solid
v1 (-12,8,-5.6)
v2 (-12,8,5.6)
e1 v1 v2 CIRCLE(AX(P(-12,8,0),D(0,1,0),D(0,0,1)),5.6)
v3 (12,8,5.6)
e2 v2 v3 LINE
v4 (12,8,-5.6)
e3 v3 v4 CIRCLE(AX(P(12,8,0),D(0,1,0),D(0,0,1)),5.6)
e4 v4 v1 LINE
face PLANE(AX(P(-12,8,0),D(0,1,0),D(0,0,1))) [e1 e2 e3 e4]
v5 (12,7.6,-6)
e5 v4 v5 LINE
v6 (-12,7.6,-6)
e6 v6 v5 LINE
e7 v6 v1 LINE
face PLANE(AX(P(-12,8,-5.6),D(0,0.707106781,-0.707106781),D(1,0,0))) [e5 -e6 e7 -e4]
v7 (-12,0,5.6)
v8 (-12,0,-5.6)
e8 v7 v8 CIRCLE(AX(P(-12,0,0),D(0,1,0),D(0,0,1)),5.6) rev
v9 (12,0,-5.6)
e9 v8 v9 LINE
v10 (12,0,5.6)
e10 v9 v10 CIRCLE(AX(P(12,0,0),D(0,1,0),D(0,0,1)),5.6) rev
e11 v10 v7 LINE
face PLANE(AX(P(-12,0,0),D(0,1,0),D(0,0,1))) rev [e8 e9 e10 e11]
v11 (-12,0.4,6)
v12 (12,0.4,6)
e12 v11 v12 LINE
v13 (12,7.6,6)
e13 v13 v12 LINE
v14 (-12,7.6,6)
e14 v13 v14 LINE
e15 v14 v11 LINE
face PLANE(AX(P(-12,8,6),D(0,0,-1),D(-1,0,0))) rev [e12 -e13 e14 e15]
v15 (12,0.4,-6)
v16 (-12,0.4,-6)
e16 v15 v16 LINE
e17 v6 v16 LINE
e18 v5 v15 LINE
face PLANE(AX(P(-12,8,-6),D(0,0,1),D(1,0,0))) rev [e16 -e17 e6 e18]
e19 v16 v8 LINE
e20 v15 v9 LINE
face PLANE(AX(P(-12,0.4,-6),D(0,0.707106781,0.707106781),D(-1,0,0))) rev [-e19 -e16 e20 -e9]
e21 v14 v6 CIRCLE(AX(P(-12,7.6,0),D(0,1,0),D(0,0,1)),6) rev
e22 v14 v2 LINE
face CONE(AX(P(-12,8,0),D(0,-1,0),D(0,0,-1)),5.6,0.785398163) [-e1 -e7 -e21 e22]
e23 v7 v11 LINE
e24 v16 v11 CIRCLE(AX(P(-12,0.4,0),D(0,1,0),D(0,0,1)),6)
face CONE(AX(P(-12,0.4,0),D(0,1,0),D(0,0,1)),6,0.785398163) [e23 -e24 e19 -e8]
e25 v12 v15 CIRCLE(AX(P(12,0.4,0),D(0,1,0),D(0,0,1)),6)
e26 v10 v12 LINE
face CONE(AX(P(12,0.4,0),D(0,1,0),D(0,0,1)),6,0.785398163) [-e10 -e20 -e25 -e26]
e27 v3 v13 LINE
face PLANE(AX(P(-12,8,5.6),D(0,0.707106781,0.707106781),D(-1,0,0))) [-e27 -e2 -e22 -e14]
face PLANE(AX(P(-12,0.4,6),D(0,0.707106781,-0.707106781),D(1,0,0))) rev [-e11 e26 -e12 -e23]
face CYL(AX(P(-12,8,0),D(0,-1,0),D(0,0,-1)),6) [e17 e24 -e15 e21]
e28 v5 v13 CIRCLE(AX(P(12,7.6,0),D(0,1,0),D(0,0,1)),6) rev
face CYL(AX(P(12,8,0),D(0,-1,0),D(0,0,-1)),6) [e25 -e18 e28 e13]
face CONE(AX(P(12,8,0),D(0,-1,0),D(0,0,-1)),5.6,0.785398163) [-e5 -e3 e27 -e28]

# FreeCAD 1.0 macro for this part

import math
import FreeCAD as App
import Part
import Sketcher
Q = App.Units.Quantity


def edges_at(feature, points):
    """Names of the edges that pass closest to the given points."""
    edges = feature.Shape.Edges
    near = lambda p: min(range(len(edges)), key=lambda i: edges[i].distToShape(Part.Vertex(*p))[0])
    return sorted({f"Edge{near(p) + 1}" for p in points})

doc = App.newDocument("Part")
body = doc.addObject("PartDesign::Body", "Body")

sketch1 = doc.addObject("Sketcher::SketchObject", "Sketch")
body.addObject(sketch1)
sketch1.AttachmentSupport = (doc.XZ_Plane, [""])
sketch1.MapMode = "FlatFace"
sketch1.addGeometry([
    Part.LineSegment(App.Vector(12, -6, 0), App.Vector(-12, -6, 0)),
    Part.ArcOfCircle(Part.Circle(App.Vector(-12, 0, 0), App.Vector(0, 0, 1), 6), math.radians(90), math.radians(270)),
    Part.LineSegment(App.Vector(-12, 6, 0), App.Vector(12, 6, 0)),
    Part.ArcOfCircle(Part.Circle(App.Vector(12, 0, 0), App.Vector(0, 0, 1), 6), math.radians(-90), math.radians(90)),
], False)
sketch1.addConstraint([
    Sketcher.Constraint("Tangent", 0, 2, 1, 2),
    Sketcher.Constraint("Tangent", 1, 1, 2, 1),
    Sketcher.Constraint("Tangent", 2, 2, 3, 2),
    Sketcher.Constraint("Tangent", 3, 1, 0, 1),
    Sketcher.Constraint("Horizontal", 0),
    Sketcher.Constraint("Horizontal", 2),
    Sketcher.Constraint("Symmetric", 1, 3, 3, 3, -1, 1),
    Sketcher.Constraint("Radius", 1, Q("6 mm")),
    Sketcher.Constraint("DistanceX", 0, 2, 0, 1, Q("24 mm")),
])
pad1 = doc.addObject("PartDesign::Pad", "Pad")
body.addObject(pad1)
pad1.Profile = sketch1
pad1.Length = 8
pad1.Reversed = True
doc.recompute()

chamfer = doc.addObject("PartDesign::Chamfer", "Chamfer")
body.addObject(chamfer)
chamfer.Base = (pad1, edges_at(pad1, [
    (18, 8, 0),
    (0, 8, -6),
    (-18, 8, 0),
    (0, 8, 6),
]))
chamfer.Size = 0.4
doc.recompute()

chamfer2 = doc.addObject("PartDesign::Chamfer", "Chamfer001")
body.addObject(chamfer2)
chamfer2.Base = (chamfer, edges_at(chamfer, [
    (0, 0, -6),
    (18, 0, 0),
    (0, 0, 6),
    (-18, 0, 0),
]))
chamfer2.Size = 0.4

doc.recompute()
